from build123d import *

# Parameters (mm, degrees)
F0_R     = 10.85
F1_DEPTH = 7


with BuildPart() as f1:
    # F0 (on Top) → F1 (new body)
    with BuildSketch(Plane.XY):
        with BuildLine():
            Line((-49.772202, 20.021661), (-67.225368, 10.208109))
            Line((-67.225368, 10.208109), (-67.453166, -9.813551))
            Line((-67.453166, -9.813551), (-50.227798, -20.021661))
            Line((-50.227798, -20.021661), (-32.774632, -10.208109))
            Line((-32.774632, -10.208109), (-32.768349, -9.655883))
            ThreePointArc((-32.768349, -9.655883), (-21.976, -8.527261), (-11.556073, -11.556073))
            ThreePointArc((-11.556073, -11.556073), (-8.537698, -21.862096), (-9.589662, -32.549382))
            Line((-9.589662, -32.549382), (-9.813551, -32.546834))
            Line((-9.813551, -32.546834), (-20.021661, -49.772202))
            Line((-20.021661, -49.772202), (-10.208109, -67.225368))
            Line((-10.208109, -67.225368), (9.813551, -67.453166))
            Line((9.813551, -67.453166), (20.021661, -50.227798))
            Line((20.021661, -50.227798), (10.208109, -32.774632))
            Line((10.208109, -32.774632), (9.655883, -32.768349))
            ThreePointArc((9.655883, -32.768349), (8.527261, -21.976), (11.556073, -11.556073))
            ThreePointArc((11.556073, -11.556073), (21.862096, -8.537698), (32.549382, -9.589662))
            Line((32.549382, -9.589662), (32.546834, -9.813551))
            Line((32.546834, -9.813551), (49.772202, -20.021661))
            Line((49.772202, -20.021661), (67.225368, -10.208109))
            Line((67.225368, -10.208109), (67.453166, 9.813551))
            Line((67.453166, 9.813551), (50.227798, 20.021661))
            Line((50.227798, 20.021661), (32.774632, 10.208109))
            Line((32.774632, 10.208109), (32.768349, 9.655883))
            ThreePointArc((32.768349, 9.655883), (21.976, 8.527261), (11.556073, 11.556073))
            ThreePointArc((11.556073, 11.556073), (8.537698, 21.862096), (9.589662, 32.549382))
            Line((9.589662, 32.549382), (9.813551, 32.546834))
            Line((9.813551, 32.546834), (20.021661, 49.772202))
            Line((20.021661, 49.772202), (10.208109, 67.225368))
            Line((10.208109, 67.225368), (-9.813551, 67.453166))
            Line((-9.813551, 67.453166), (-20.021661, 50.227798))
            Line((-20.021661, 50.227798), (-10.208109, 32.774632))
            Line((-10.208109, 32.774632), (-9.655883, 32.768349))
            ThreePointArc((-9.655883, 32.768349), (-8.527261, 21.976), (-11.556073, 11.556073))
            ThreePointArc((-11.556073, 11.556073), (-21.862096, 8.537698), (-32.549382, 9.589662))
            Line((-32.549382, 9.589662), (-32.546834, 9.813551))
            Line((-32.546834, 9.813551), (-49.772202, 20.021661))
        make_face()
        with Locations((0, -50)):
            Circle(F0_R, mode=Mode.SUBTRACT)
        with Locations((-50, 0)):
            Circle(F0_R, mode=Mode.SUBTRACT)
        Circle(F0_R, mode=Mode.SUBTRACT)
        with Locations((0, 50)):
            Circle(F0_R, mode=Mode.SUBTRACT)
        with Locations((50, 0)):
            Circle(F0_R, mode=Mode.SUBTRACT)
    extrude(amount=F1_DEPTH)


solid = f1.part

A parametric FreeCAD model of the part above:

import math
import FreeCAD as App
import Part
import Sketcher

V = App.Vector
Q = App.Units.Quantity

doc = App.newDocument("Part")
params = doc.addObject("Spreadsheet::Sheet", "Params")
for row, (alias, value) in enumerate([
    ("sketch1_diameter", "21.7 mm"),
    ("sketch1_diameter2", "21.7 mm"),
    ("sketch1_diameter3", "21.7 mm"),
    ("sketch1_diameter4", "21.7 mm"),
    ("sketch1_diameter5", "21.7 mm"),
    ("pad1_length", "7 mm"),
], start=1):
    params.set(f"A{row}", alias)
    params.set(f"B{row}", "=" + value)
    params.setAlias(f"B{row}", alias)

body = doc.addObject("PartDesign::Body", "Body")

sketch1 = body.newObject("Sketcher::SketchObject", "Sketch")
sketch1.AttachmentSupport = (doc.getObject("XY_Plane"), [""])
sketch1.MapMode = "FlatFace"
sketch1.addGeometry([
    Part.LineSegment(V(-49.772202, 20.021661, 0), V(-67.225368, 10.208109, 0)),
    Part.LineSegment(V(-67.225368, 10.208109, 0), V(-67.453166, -9.813551, 0)),
    Part.LineSegment(V(-67.453166, -9.813551, 0), V(-50.227798, -20.021661, 0)),
    Part.LineSegment(V(-50.227798, -20.021661, 0), V(-32.774632, -10.208109, 0)),
    Part.LineSegment(V(-32.774632, -10.208109, 0), V(-32.768349, -9.655883, 0)),
    Part.ArcOfCircle(Part.Circle(V(-24.492918, -36.624214, 0), V(0, 0, 1), 28.20946), math.radians(62.703227), math.radians(107.059018)),
    Part.ArcOfCircle(Part.Circle(V(-36.624221, -24.492918, 0), V(0, 0, 1), 28.209466), math.radians(-16.594379), math.radians(27.296767)),
    Part.LineSegment(V(-9.589662, -32.549382, 0), V(-9.813551, -32.546834, 0)),
    Part.LineSegment(V(-9.813551, -32.546834, 0), V(-20.021661, -49.772202, 0)),
    Part.LineSegment(V(-20.021661, -49.772202, 0), V(-10.208109, -67.225368, 0)),
    Part.LineSegment(V(-10.208109, -67.225368, 0), V(9.813551, -67.453166, 0)),
    Part.LineSegment(V(9.813551, -67.453166, 0), V(20.021661, -50.227798, 0)),
    Part.LineSegment(V(20.021661, -50.227798, 0), V(10.208109, -32.774632, 0)),
    Part.LineSegment(V(10.208109, -32.774632, 0), V(9.655883, -32.768349, 0)),
    Part.ArcOfCircle(Part.Circle(V(36.624214, -24.492918, 0), V(0, 0, 1), 28.20946), math.radians(152.703227), math.radians(197.059018)),
    Part.ArcOfCircle(Part.Circle(V(24.492918, -36.624221, 0), V(0, 0, 1), 28.209466), math.radians(73.405621), math.radians(117.296767)),
    Part.LineSegment(V(32.549382, -9.589662, 0), V(32.546834, -9.813551, 0)),
    Part.LineSegment(V(32.546834, -9.813551, 0), V(49.772202, -20.021661, 0)),
    Part.LineSegment(V(49.772202, -20.021661, 0), V(67.225368, -10.208109, 0)),
    Part.LineSegment(V(67.225368, -10.208109, 0), V(67.453166, 9.813551, 0)),
    Part.LineSegment(V(67.453166, 9.813551, 0), V(50.227798, 20.021661, 0)),
    Part.LineSegment(V(50.227798, 20.021661, 0), V(32.774632, 10.208109, 0)),
    Part.LineSegment(V(32.774632, 10.208109, 0), V(32.768349, 9.655883, 0)),
    Part.ArcOfCircle(Part.Circle(V(24.492918, 36.624214, 0), V(0, 0, 1), 28.20946), math.radians(-117.296773), math.radians(-72.940982)),
    Part.ArcOfCircle(Part.Circle(V(36.624221, 24.492918, 0), V(0, 0, 1), 28.209466), math.radians(163.405621), math.radians(207.296767)),
    Part.LineSegment(V(9.589662, 32.549382, 0), V(9.813551, 32.546834, 0)),
    Part.LineSegment(V(9.813551, 32.546834, 0), V(20.021661, 49.772202, 0)),
    Part.LineSegment(V(20.021661, 49.772202, 0), V(10.208109, 67.225368, 0)),
    Part.LineSegment(V(10.208109, 67.225368, 0), V(-9.813551, 67.453166, 0)),
    Part.LineSegment(V(-9.813551, 67.453166, 0), V(-20.021661, 50.227798, 0)),
    Part.LineSegment(V(-20.021661, 50.227798, 0), V(-10.208109, 32.774632, 0)),
    Part.LineSegment(V(-10.208109, 32.774632, 0), V(-9.655883, 32.768349, 0)),
    Part.ArcOfCircle(Part.Circle(V(-36.624214, 24.492918, 0), V(0, 0, 1), 28.20946), math.radians(-27.296773), math.radians(17.059018)),
    Part.ArcOfCircle(Part.Circle(V(-24.492918, 36.624221, 0), V(0, 0, 1), 28.209466), math.radians(-106.594379), math.radians(-62.703233)),
    Part.LineSegment(V(-32.549382, 9.589662, 0), V(-32.546834, 9.813551, 0)),
    Part.LineSegment(V(-32.546834, 9.813551, 0), V(-49.772202, 20.021661, 0)),
    Part.Circle(V(0, -50, 0), V(0, 0, 1), 10.85),
    Part.Circle(V(-50, 0, 0), V(0, 0, 1), 10.85),
    Part.Circle(V(0, 0, 0), V(0, 0, 1), 10.85),
    Part.Circle(V(50, 0, 0), V(0, 0, 1), 10.85),
    Part.Circle(V(0, 50, 0), V(0, 0, 1), 10.85),
], False)
sketch1.addConstraint([
    Sketcher.Constraint("Coincident", 0, 2, 1, 1),
    Sketcher.Constraint("Coincident", 1, 2, 2, 1),
    Sketcher.Constraint("Coincident", 2, 2, 3, 1),
    Sketcher.Constraint("Coincident", 3, 2, 4, 1),
    Sketcher.Constraint("Coincident", 4, 2, 5, 2),
    Sketcher.Constraint("Coincident", 5, 1, 6, 2),
    Sketcher.Constraint("Coincident", 6, 1, 7, 1),
    Sketcher.Constraint("Coincident", 7, 2, 8, 1),
    Sketcher.Constraint("Coincident", 8, 2, 9, 1),
    Sketcher.Constraint("Coincident", 9, 2, 10, 1),
    Sketcher.Constraint("Coincident", 10, 2, 11, 1),
    Sketcher.Constraint("Coincident", 11, 2, 12, 1),
    Sketcher.Constraint("Coincident", 12, 2, 13, 1),
    Sketcher.Constraint("Coincident", 13, 2, 14, 2),
    Sketcher.Constraint("Coincident", 14, 1, 15, 2),
    Sketcher.Constraint("Coincident", 15, 1, 16, 1),
    Sketcher.Constraint("Coincident", 16, 2, 17, 1),
    Sketcher.Constraint("Coincident", 17, 2, 18, 1),
    Sketcher.Constraint("Coincident", 18, 2, 19, 1),
    Sketcher.Constraint("Coincident", 19, 2, 20, 1),
    Sketcher.Constraint("Coincident", 20, 2, 21, 1),
    Sketcher.Constraint("Coincident", 21, 2, 22, 1),
    Sketcher.Constraint("Coincident", 22, 2, 23, 2),
    Sketcher.Constraint("Coincident", 23, 1, 24, 2),
    Sketcher.Constraint("Coincident", 24, 1, 25, 1),
    Sketcher.Constraint("Coincident", 25, 2, 26, 1),
    Sketcher.Constraint("Coincident", 26, 2, 27, 1),
    Sketcher.Constraint("Coincident", 27, 2, 28, 1),
    Sketcher.Constraint("Coincident", 28, 2, 29, 1),
    Sketcher.Constraint("Coincident", 29, 2, 30, 1),
    Sketcher.Constraint("Coincident", 30, 2, 31, 1),
    Sketcher.Constraint("Coincident", 31, 2, 32, 2),
    Sketcher.Constraint("Coincident", 32, 1, 33, 2),
    Sketcher.Constraint("Coincident", 33, 1, 34, 1),
    Sketcher.Constraint("Coincident", 34, 2, 35, 1),
    Sketcher.Constraint("Coincident", 35, 2, 0, 1),
    Sketcher.Constraint("Coincident", 38, 3, -1, 1),
    Sketcher.Constraint("PointOnObject", 36, 3, -2),
    Sketcher.Constraint("PointOnObject", 37, 3, -1),
    Sketcher.Constraint("PointOnObject", 39, 3, -1),
    Sketcher.Constraint("PointOnObject", 40, 3, -2),
    Sketcher.Constraint("Diameter", 36, Q("21.7 mm")),
    Sketcher.Constraint("Diameter", 37, Q("21.7 mm")),
    Sketcher.Constraint("Diameter", 38, Q("21.7 mm")),
    Sketcher.Constraint("Diameter", 39, Q("21.7 mm")),
    Sketcher.Constraint("Diameter", 40, Q("21.7 mm")),
    Sketcher.Constraint("DistanceY", 36, 3, -1, 1, Q("50 mm")),
    Sketcher.Constraint("DistanceX", 37, 3, -1, 1, Q("50 mm")),
    Sketcher.Constraint("DistanceX", -1, 1, 39, 3, Q("50 mm")),
    Sketcher.Constraint("DistanceY", -1, 1, 40, 3, Q("50 mm")),
    Sketcher.Constraint("Radius", 5, Q("28.20946 mm")),
    Sketcher.Constraint("Radius", 14, Q("28.20946 mm")),
    Sketcher.Constraint("Radius", 23, Q("28.20946 mm")),
    Sketcher.Constraint("Radius", 32, Q("28.20946 mm")),
    Sketcher.Constraint("Radius", 6, Q("28.209466 mm")),
    Sketcher.Constraint("Radius", 15, Q("28.209466 mm")),
    Sketcher.Constraint("Radius", 24, Q("28.209466 mm")),
    Sketcher.Constraint("Radius", 33, Q("28.209466 mm")),
    Sketcher.Constraint("DistanceX", 8, 2, 6, 1, Q("10.431999 mm")),
    Sketcher.Constraint("DistanceY", 17, 2, 15, 1, Q("10.431999 mm")),
    Sketcher.Constraint("DistanceX", 24, 1, 26, 2, Q("10.431999 mm")),
    Sketcher.Constraint("DistanceY", 33, 1, 35, 2, Q("10.431999 mm")),
    Sketcher.Constraint("Distance", 4, Q("0.552262 mm")),
    Sketcher.Constraint("Distance", 13, Q("0.552262 mm")),
    Sketcher.Constraint("Distance", 22, Q("0.552262 mm")),
    Sketcher.Constraint("Distance", 31, Q("0.552262 mm")),
    Sketcher.Constraint("DistanceX", 6, 3, -1, 1, Q("36.624221 mm")),
    Sketcher.Constraint("DistanceY", 15, 3, -1, 1, Q("36.624221 mm")),
    Sketcher.Constraint("DistanceX", -1, 1, 24, 3, Q("36.624221 mm")),
    Sketcher.Constraint("DistanceY", -1, 1, 33, 3, Q("36.624221 mm")),
    Sketcher.Constraint("DistanceX", 0, 2, -1, 1, Q("67.225368 mm")),
    Sketcher.Constraint("DistanceY", -1, 1, 0, 2, Q("10.208109 mm")),
    Sketcher.Constraint("DistanceY", 1, 2, -1, 1, Q("9.813551 mm")),
    Sketcher.Constraint("DistanceY", 2, 2, -1, 1, Q("20.021661 mm")),
    Sketcher.Constraint("DistanceX", 3, 2, -1, 1, Q("32.774632 mm")),
    Sketcher.Constraint("DistanceY", 3, 2, -1, 1, Q("10.208109 mm")),
    Sketcher.Constraint("DistanceX", 4, 2, -1, 1, Q("32.768349 mm")),
    Sketcher.Constraint("DistanceY", 6, 1, -1, 1, Q("32.549382 mm")),
    Sketcher.Constraint("DistanceX", 7, 2, -1, 1, Q("9.813551 mm")),
    Sketcher.Constraint("DistanceX", 8, 2, -1, 1, Q("20.021661 mm")),
    Sketcher.Constraint("DistanceX", 9, 2, -1, 1, Q("10.208109 mm")),
    Sketcher.Constraint("DistanceY", 9, 2, -1, 1, Q("67.225368 mm")),
    Sketcher.Constraint("DistanceX", -1, 1, 10, 2, Q("9.813551 mm")),
    Sketcher.Constraint("DistanceX", -1, 1, 11, 2, Q("20.021661 mm")),
    Sketcher.Constraint("DistanceX", -1, 1, 12, 2, Q("10.208109 mm")),
    Sketcher.Constraint("DistanceY", 12, 2, -1, 1, Q("32.774632 mm")),
    Sketcher.Constraint("DistanceY", 13, 2, -1, 1, Q("32.768349 mm")),
    Sketcher.Constraint("DistanceX", -1, 1, 15, 1, Q("32.549382 mm")),
    Sketcher.Constraint("DistanceY", 16, 2, -1, 1, Q("9.813551 mm")),
    Sketcher.Constraint("DistanceY", 17, 2, -1, 1, Q("20.021661 mm")),
    Sketcher.Constraint("DistanceX", -1, 1, 18, 2, Q("67.225368 mm")),
    Sketcher.Constraint("DistanceY", 18, 2, -1, 1, Q("10.208109 mm")),
    Sketcher.Constraint("DistanceY", -1, 1, 19, 2, Q("9.813551 mm")),
    Sketcher.Constraint("DistanceY", -1, 1, 20, 2, Q("20.021661 mm")),
    Sketcher.Constraint("DistanceX", -1, 1, 21, 2, Q("32.774632 mm")),
    Sketcher.Constraint("DistanceY", -1, 1, 21, 2, Q("10.208109 mm")),
    Sketcher.Constraint("DistanceX", -1, 1, 22, 2, Q("32.768349 mm")),
    Sketcher.Constraint("DistanceY", -1, 1, 24, 1, Q("32.549382 mm")),
    Sketcher.Constraint("DistanceX", -1, 1, 25, 2, Q("9.813551 mm")),
    Sketcher.Constraint("DistanceX", -1, 1, 26, 2, Q("20.021661 mm")),
    Sketcher.Constraint("DistanceX", -1, 1, 27, 2, Q("10.208109 mm")),
    Sketcher.Constraint("DistanceY", -1, 1, 27, 2, Q("67.225368 mm")),
    Sketcher.Constraint("DistanceX", 28, 2, -1, 1, Q("9.813551 mm")),
    Sketcher.Constraint("DistanceX", 29, 2, -1, 1, Q("20.021661 mm")),
    Sketcher.Constraint("DistanceX", 30, 2, -1, 1, Q("10.208109 mm")),
    Sketcher.Constraint("DistanceY", -1, 1, 30, 2, Q("32.774632 mm")),
    Sketcher.Constraint("DistanceY", -1, 1, 31, 2, Q("32.768349 mm")),
    Sketcher.Constraint("DistanceX", 33, 1, -1, 1, Q("32.549382 mm")),
    Sketcher.Constraint("DistanceY", -1, 1, 34, 2, Q("9.813551 mm")),
    Sketcher.Constraint("DistanceY", -1, 1, 35, 2, Q("20.021661 mm")),
    Sketcher.Constraint("DistanceX", 5, 3, 14, 3, Q("61.117131 mm")),
    Sketcher.Constraint("DistanceY", 14, 3, 23, 3, Q("61.117131 mm")),
    Sketcher.Constraint("DistanceX", 6, 3, 23, 3, Q("61.117138 mm")),
    Sketcher.Constraint("DistanceY", 5, 3, 32, 3, Q("61.117131 mm")),
    Sketcher.Constraint("DistanceX", 1, 2, 5, 3, Q("42.960248 mm")),
    Sketcher.Constraint("DistanceX", 2, 2, 5, 3, Q("25.73488 mm")),
    Sketcher.Constraint("DistanceY", 5, 3, 7, 2, Q("4.07738 mm")),
    Sketcher.Constraint("DistanceY", 8, 2, 5, 3, Q("13.147988 mm")),
    Sketcher.Constraint("DistanceY", 11, 2, 14, 3, Q("25.73488 mm")),
    Sketcher.Constraint("DistanceX", 16, 2, 14, 3, Q("4.07738 mm")),
    Sketcher.Constraint("DistanceX", 14, 3, 17, 2, Q("13.147988 mm")),
    Sketcher.Constraint("DistanceX", 23, 3, 20, 2, Q("25.73488 mm")),
    Sketcher.Constraint("DistanceY", 25, 2, 23, 3, Q("4.07738 mm")),
    Sketcher.Constraint("DistanceY", 23, 3, 26, 2, Q("13.147988 mm")),
    Sketcher.Constraint("DistanceY", 32, 3, 29, 2, Q("25.73488 mm")),
    Sketcher.Constraint("DistanceX", 32, 3, 34, 2, Q("4.07738 mm")),
    Sketcher.Constraint("DistanceX", 35, 2, 32, 3, Q("13.147988 mm")),
    Sketcher.Constraint("Distance", 10, Q("20.022956 mm")),
    Sketcher.Constraint("Distance", 19, Q("20.022956 mm")),
    Sketcher.Constraint("Distance", 28, Q("20.022956 mm")),
])
sketch1.setExpression("Constraints[41]", "Params.sketch1_diameter")
sketch1.setExpression("Constraints[42]", "Params.sketch1_diameter2")
sketch1.setExpression("Constraints[43]", "Params.sketch1_diameter3")
sketch1.setExpression("Constraints[44]", "Params.sketch1_diameter4")
sketch1.setExpression("Constraints[45]", "Params.sketch1_diameter5")
pad1 = body.newObject("PartDesign::Pad", "Pad")
pad1.Profile = sketch1
pad1.setExpression("Length", "Params.pad1_length")

doc.recompute()
